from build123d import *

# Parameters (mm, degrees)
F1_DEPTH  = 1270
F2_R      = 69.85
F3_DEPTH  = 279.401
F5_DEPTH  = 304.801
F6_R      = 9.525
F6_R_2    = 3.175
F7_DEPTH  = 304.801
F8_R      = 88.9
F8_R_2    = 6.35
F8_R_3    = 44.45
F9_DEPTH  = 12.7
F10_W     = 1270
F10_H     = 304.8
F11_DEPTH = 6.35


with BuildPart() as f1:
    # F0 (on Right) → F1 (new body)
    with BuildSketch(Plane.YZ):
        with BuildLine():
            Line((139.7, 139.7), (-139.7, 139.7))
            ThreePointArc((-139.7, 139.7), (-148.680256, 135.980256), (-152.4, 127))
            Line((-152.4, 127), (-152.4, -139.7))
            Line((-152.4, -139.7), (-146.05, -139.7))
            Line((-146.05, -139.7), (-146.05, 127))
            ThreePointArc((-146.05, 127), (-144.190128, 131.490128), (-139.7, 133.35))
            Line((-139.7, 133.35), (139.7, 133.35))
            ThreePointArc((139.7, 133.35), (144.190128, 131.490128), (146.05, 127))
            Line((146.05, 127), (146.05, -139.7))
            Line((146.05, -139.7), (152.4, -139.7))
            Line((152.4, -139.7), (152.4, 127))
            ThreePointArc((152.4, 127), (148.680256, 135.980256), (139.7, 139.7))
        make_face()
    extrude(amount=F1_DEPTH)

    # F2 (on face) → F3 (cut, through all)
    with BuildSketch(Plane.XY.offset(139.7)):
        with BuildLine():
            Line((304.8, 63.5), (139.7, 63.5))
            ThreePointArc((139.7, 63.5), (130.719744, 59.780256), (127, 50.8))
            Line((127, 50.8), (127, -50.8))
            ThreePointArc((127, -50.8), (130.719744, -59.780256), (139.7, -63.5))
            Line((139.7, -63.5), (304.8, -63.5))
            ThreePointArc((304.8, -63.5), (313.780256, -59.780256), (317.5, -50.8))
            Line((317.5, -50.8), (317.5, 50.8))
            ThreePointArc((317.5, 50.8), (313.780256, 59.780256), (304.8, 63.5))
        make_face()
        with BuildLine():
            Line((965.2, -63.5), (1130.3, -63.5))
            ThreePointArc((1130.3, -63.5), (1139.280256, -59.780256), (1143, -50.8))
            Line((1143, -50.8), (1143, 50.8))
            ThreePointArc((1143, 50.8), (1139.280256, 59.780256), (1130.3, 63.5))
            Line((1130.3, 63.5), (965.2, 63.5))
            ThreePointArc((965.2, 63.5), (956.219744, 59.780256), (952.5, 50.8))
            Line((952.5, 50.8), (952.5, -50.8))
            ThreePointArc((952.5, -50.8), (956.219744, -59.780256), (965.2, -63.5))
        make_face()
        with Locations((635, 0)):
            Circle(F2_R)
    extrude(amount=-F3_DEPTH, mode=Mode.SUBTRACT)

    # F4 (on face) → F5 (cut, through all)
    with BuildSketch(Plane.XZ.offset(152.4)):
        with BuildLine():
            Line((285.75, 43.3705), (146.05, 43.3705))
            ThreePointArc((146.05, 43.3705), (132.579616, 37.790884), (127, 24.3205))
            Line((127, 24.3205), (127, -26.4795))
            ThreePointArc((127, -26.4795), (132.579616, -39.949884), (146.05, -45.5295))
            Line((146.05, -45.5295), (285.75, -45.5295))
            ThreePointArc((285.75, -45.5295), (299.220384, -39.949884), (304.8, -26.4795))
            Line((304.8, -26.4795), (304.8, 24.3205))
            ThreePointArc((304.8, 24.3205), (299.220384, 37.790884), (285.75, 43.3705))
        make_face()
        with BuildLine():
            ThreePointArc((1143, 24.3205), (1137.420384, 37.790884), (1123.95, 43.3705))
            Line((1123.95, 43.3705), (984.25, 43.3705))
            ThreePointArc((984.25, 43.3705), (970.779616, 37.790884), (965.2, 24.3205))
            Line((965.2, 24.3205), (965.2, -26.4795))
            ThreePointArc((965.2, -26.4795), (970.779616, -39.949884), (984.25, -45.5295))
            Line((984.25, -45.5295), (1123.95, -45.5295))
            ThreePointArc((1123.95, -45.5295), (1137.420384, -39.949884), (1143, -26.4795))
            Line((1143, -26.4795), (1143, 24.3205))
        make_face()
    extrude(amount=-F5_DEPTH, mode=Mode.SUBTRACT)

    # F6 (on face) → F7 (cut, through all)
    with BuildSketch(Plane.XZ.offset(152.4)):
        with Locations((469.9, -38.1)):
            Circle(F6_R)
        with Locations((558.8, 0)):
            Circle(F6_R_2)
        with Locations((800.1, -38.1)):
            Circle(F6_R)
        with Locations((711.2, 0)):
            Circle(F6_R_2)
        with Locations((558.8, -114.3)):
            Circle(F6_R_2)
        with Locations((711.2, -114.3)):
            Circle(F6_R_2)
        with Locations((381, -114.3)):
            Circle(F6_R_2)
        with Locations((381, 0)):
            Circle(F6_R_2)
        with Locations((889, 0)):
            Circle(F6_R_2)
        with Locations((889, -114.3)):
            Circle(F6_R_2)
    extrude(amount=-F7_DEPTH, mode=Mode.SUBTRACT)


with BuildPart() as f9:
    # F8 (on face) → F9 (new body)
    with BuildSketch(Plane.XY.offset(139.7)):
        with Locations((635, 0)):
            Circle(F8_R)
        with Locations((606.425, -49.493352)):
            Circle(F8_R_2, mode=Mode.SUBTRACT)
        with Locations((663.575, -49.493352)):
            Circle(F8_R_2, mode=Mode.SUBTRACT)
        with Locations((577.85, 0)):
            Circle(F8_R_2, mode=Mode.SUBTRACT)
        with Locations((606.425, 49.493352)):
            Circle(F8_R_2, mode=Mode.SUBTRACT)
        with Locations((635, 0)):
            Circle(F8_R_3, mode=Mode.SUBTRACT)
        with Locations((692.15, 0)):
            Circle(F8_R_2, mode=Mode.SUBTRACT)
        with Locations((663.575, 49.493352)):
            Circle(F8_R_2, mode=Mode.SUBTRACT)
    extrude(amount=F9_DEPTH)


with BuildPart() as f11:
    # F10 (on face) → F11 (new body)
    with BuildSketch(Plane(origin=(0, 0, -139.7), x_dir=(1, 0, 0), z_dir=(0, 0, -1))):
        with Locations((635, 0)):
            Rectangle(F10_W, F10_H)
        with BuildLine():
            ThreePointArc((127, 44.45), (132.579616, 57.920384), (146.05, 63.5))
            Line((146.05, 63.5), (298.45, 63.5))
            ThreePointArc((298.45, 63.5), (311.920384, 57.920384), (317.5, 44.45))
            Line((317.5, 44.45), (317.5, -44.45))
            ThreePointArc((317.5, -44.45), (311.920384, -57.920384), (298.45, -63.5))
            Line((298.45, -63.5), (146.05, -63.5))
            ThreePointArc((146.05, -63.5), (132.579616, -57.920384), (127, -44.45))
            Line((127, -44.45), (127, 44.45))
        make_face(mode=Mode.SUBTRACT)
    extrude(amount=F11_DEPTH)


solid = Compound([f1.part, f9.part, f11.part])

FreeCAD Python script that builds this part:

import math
import FreeCAD as App
import Part
import Sketcher
Q = App.Units.Quantity

doc = App.newDocument("Part")
params = doc.addObject("Spreadsheet::Sheet", "Params")
for row, (alias, value) in enumerate([
    ("sketch1_radius", "0.5 in"),
    ("sketch1_width", "11 in"),
    ("sketch1_radius2", "0.25 in"),
    ("sketch1_height", "10.5 in"),
    ("pad1_length", "50 in"),
    ("sketch2_diameter", "5.5 in"),
    ("sketch2_radius", "0.5 in"),
    ("sketch2_height", "4 in"),
    ("sketch2_width", "6.5 in"),
    ("sketch3_height", "2 in"),
    ("sketch3_radius", "0.75 in"),
    ("sketch3_width", "5.5 in"),
    ("sketch4_diameter", "0.75 in"),
    ("sketch4_diameter2", "0.25 in"),
    ("sketch5_diameter", "7 in"),
    ("sketch5_diameter2", "0.5 in"),
    ("sketch5_diameter3", "3.5 in"),
    ("pad2_length", "0.5 in"),
    ("sketch6_width", "50 in"),
    ("sketch6_width2", "6 in"),
    ("sketch6_height", "12 in"),
    ("sketch6_radius", "0.75 in"),
    ("sketch6_height2", "3.5 in"),
    ("pad3_length", "0.25 in"),
], start=1):
    params.set(f"A{row}", alias)
    params.set(f"B{row}", "=" + value)
    params.setAlias(f"B{row}", alias)

body = doc.addObject("PartDesign::Body", "Body")

sketch1 = doc.addObject("Sketcher::SketchObject", "Sketch")
body.addObject(sketch1)
sketch1.AttachmentSupport = (doc.YZ_Plane, [""])
sketch1.MapMode = "FlatFace"
sketch1.addGeometry(Part.LineSegment(App.Vector(140, 140, 0), App.Vector(-140, 140, 0)), False)
sketch1.addGeometry(Part.ArcOfCircle(Part.Circle(App.Vector(-140, 127, 0), App.Vector(0, 0, 1), 13), math.radians(90), math.radians(180)), False)
sketch1.addGeometry(Part.LineSegment(App.Vector(-152, 127, 0), App.Vector(-152, -140, 0)), False)
sketch1.addGeometry(Part.LineSegment(App.Vector(-152, -140, 0), App.Vector(-146, -140, 0)), False)
sketch1.addGeometry(Part.LineSegment(App.Vector(-146, -140, 0), App.Vector(-146, 127, 0)), False)
sketch1.addGeometry(Part.ArcOfCircle(Part.Circle(App.Vector(-140, 127, 0), App.Vector(0, 0, 1), 6), math.radians(90), math.radians(180)), False)
sketch1.addGeometry(Part.LineSegment(App.Vector(-140, 133, 0), App.Vector(140, 133, 0)), False)
sketch1.addGeometry(Part.ArcOfCircle(Part.Circle(App.Vector(140, 127, 0), App.Vector(0, 0, 1), 6), math.radians(0), math.radians(90)), False)
sketch1.addGeometry(Part.LineSegment(App.Vector(146, 127, 0), App.Vector(146, -140, 0)), False)
sketch1.addGeometry(Part.LineSegment(App.Vector(146, -140, 0), App.Vector(152, -140, 0)), False)
sketch1.addGeometry(Part.LineSegment(App.Vector(152, -140, 0), App.Vector(152, 127, 0)), False)
sketch1.addGeometry(Part.ArcOfCircle(Part.Circle(App.Vector(140, 127, 0), App.Vector(0, 0, 1), 13), math.radians(0), math.radians(90)), False)
sketch1.addConstraint(Sketcher.Constraint("Tangent", 0, 2, 1, 1))
sketch1.addConstraint(Sketcher.Constraint("Tangent", 1, 2, 2, 1))
sketch1.addConstraint(Sketcher.Constraint("Coincident", 2, 2, 3, 1))
sketch1.addConstraint(Sketcher.Constraint("Coincident", 3, 2, 4, 1))
sketch1.addConstraint(Sketcher.Constraint("Tangent", 4, 2, 5, 2))
sketch1.addConstraint(Sketcher.Constraint("Tangent", 5, 1, 6, 1))
sketch1.addConstraint(Sketcher.Constraint("Tangent", 6, 2, 7, 2))
sketch1.addConstraint(Sketcher.Constraint("Tangent", 7, 1, 8, 1))
sketch1.addConstraint(Sketcher.Constraint("Coincident", 8, 2, 9, 1))
sketch1.addConstraint(Sketcher.Constraint("Coincident", 9, 2, 10, 1))
sketch1.addConstraint(Sketcher.Constraint("Tangent", 10, 2, 11, 1))
sketch1.addConstraint(Sketcher.Constraint("Tangent", 11, 2, 0, 1))
sketch1.addConstraint(Sketcher.Constraint("Horizontal", 0))
sketch1.addConstraint(Sketcher.Constraint("Vertical", 2))
sketch1.addConstraint(Sketcher.Constraint("Horizontal", 3))
sketch1.addConstraint(Sketcher.Constraint("Vertical", 4))
sketch1.addConstraint(Sketcher.Constraint("Horizontal", 6))
sketch1.addConstraint(Sketcher.Constraint("Vertical", 8))
sketch1.addConstraint(Sketcher.Constraint("Horizontal", 9))
sketch1.addConstraint(Sketcher.Constraint("Vertical", 10))
sketch1.addConstraint(Sketcher.Constraint("Coincident", 5, 3, 1, 3))
sketch1.addConstraint(Sketcher.Constraint("Coincident", 11, 3, 7, 3))
sketch1.addConstraint(Sketcher.Constraint("Equal", 5, 7))
sketch1.addConstraint(Sketcher.Constraint("Symmetric", 3, 2, 8, 2, -2))
sketch1.addConstraint(Sketcher.Constraint("Radius", 1, Q("0.5 in")))
sketch1.addConstraint(Sketcher.Constraint("DistanceX", 0, 2, 0, 1, Q("11 in")))
sketch1.addConstraint(Sketcher.Constraint("Radius", 5, Q("0.25 in")))
sketch1.addConstraint(Sketcher.Constraint("DistanceY", 2, 2, 2, 1, Q("10.5 in")))
sketch1.addConstraint(Sketcher.Constraint("DistanceY", -1, 1, 1, 3, Q("5 in")))
sketch1.setExpression("Constraints[24]", "Params.sketch1_radius")
sketch1.setExpression("Constraints[25]", "Params.sketch1_width")
sketch1.setExpression("Constraints[26]", "Params.sketch1_radius2")
sketch1.setExpression("Constraints[27]", "Params.sketch1_height")
pad1 = doc.addObject("PartDesign::Pad", "Pad")
body.addObject(pad1)
pad1.Profile = sketch1
pad1.setExpression("Length", "Params.pad1_length")

sketch2 = doc.addObject("Sketcher::SketchObject", "Sketch001")
body.addObject(sketch2)
sketch2.AttachmentSupport = (doc.XY_Plane, [""])
sketch2.MapMode = "FlatFace"
sketch2.AttachmentOffset = App.Placement(App.Vector(0, 0, 5.5 * 25.4), App.Rotation())
sketch2.addGeometry(Part.LineSegment(App.Vector(305, 64, 0), App.Vector(140, 64, 0)), False)
sketch2.addGeometry(Part.ArcOfCircle(Part.Circle(App.Vector(140, 51, 0), App.Vector(0, 0, 1), 13), math.radians(90), math.radians(180)), False)
sketch2.addGeometry(Part.LineSegment(App.Vector(127, 51, 0), App.Vector(127, -51, 0)), False)
sketch2.addGeometry(Part.ArcOfCircle(Part.Circle(App.Vector(140, -51, 0), App.Vector(0, 0, 1), 13), math.radians(-180), math.radians(-90)), False)
sketch2.addGeometry(Part.LineSegment(App.Vector(140, -64, 0), App.Vector(305, -64, 0)), False)
sketch2.addGeometry(Part.ArcOfCircle(Part.Circle(App.Vector(305, -51, 0), App.Vector(0, 0, 1), 13), math.radians(-90), math.radians(0)), False)
sketch2.addGeometry(Part.LineSegment(App.Vector(318, -51, 0), App.Vector(318, 51, 0)), False)
sketch2.addGeometry(Part.ArcOfCircle(Part.Circle(App.Vector(305, 51, 0), App.Vector(0, 0, 1), 13), math.radians(0), math.radians(90)), False)
sketch2.addGeometry(Part.LineSegment(App.Vector(965, -64, 0), App.Vector(1130, -64, 0)), False)
sketch2.addGeometry(Part.ArcOfCircle(Part.Circle(App.Vector(1130, -51, 0), App.Vector(0, 0, 1), 13), math.radians(-90), math.radians(0)), False)
sketch2.addGeometry(Part.LineSegment(App.Vector(1143, -51, 0), App.Vector(1143, 51, 0)), False)
sketch2.addGeometry(Part.ArcOfCircle(Part.Circle(App.Vector(1130, 51, 0), App.Vector(0, 0, 1), 13), math.radians(0), math.radians(90)), False)
sketch2.addGeometry(Part.LineSegment(App.Vector(1130, 64, 0), App.Vector(965, 64, 0)), False)
sketch2.addGeometry(Part.ArcOfCircle(Part.Circle(App.Vector(965, 51, 0), App.Vector(0, 0, 1), 13), math.radians(90), math.radians(180)), False)
sketch2.addGeometry(Part.LineSegment(App.Vector(952, 51, 0), App.Vector(952, -51, 0)), False)
sketch2.addGeometry(Part.ArcOfCircle(Part.Circle(App.Vector(965, -51, 0), App.Vector(0, 0, 1), 13), math.radians(-180), math.radians(-90)), False)
sketch2.addGeometry(Part.Circle(App.Vector(635, 0, 0), App.Vector(0, 0, 1), 70), False)
sketch2.addConstraint(Sketcher.Constraint("Tangent", 0, 2, 1, 1))
sketch2.addConstraint(Sketcher.Constraint("Tangent", 1, 2, 2, 1))
sketch2.addConstraint(Sketcher.Constraint("Tangent", 2, 2, 3, 1))
sketch2.addConstraint(Sketcher.Constraint("Tangent", 3, 2, 4, 1))
sketch2.addConstraint(Sketcher.Constraint("Tangent", 4, 2, 5, 1))
sketch2.addConstraint(Sketcher.Constraint("Tangent", 5, 2, 6, 1))
sketch2.addConstraint(Sketcher.Constraint("Tangent", 6, 2, 7, 1))
sketch2.addConstraint(Sketcher.Constraint("Tangent", 7, 2, 0, 1))
sketch2.addConstraint(Sketcher.Constraint("Tangent", 8, 2, 9, 1))
sketch2.addConstraint(Sketcher.Constraint("Tangent", 9, 2, 10, 1))
sketch2.addConstraint(Sketcher.Constraint("Tangent", 10, 2, 11, 1))
sketch2.addConstraint(Sketcher.Constraint("Tangent", 11, 2, 12, 1))
sketch2.addConstraint(Sketcher.Constraint("Tangent", 12, 2, 13, 1))
sketch2.addConstraint(Sketcher.Constraint("Tangent", 13, 2, 14, 1))
sketch2.addConstraint(Sketcher.Constraint("Tangent", 14, 2, 15, 1))
sketch2.addConstraint(Sketcher.Constraint("Tangent", 15, 2, 8, 1))
sketch2.addConstraint(Sketcher.Constraint("Horizontal", 0))
sketch2.addConstraint(Sketcher.Constraint("Vertical", 2))
sketch2.addConstraint(Sketcher.Constraint("Horizontal", 4))
sketch2.addConstraint(Sketcher.Constraint("Vertical", 6))
sketch2.addConstraint(Sketcher.Constraint("Horizontal", 8))
sketch2.addConstraint(Sketcher.Constraint("Vertical", 10))
sketch2.addConstraint(Sketcher.Constraint("Horizontal", 12))
sketch2.addConstraint(Sketcher.Constraint("Vertical", 14))
sketch2.addConstraint(Sketcher.Constraint("Equal", 1, 3))
sketch2.addConstraint(Sketcher.Constraint("Equal", 3, 5))
sketch2.addConstraint(Sketcher.Constraint("Equal", 5, 7))
sketch2.addConstraint(Sketcher.Constraint("Equal", 7, 9))
sketch2.addConstraint(Sketcher.Constraint("Equal", 9, 11))
sketch2.addConstraint(Sketcher.Constraint("Equal", 11, 13))
sketch2.addConstraint(Sketcher.Constraint("Equal", 13, 15))
sketch2.addConstraint(Sketcher.Constraint("PointOnObject", 16, 3, -1))
sketch2.addConstraint(Sketcher.Constraint("Horizontal", 5, 3, 9, 3))
sketch2.addConstraint(Sketcher.Constraint("Horizontal", 7, 3, 11, 3))
sketch2.addConstraint(Sketcher.Constraint("Equal", 4, 8))
sketch2.addConstraint(Sketcher.Constraint("Diameter", 16, Q("5.5 in")))
sketch2.addConstraint(Sketcher.Constraint("Radius", 1, Q("0.5 in")))
sketch2.addConstraint(Sketcher.Constraint("DistanceY", 2, 2, 2, 1, Q("4 in")))
sketch2.addConstraint(Sketcher.Constraint("DistanceX", 0, 2, 0, 1, Q("6.5 in")))
sketch2.addConstraint(Sketcher.Constraint("DistanceY", -1, 1, 1, 3, Q("2 in")))
sketch2.addConstraint(Sketcher.Constraint("DistanceX", -1, 1, 5, 3, Q("12 in")))
sketch2.addConstraint(Sketcher.Constraint("DistanceX", -1, 1, 13, 3, Q("38 in")))
sketch2.addConstraint(Sketcher.Constraint("DistanceX", -1, 1, 16, 3, Q("25 in")))
sketch2.setExpression("Constraints[35]", "Params.sketch2_diameter")
sketch2.setExpression("Constraints[36]", "Params.sketch2_radius")
sketch2.setExpression("Constraints[37]", "Params.sketch2_height")
sketch2.setExpression("Constraints[38]", "Params.sketch2_width")
pocket1 = doc.addObject("PartDesign::Pocket", "Pocket")
body.addObject(pocket1)
pocket1.Profile = sketch2
pocket1.Type = "ThroughAll"

sketch3 = doc.addObject("Sketcher::SketchObject", "Sketch002")
body.addObject(sketch3)
sketch3.AttachmentSupport = (doc.XZ_Plane, [""])
sketch3.MapMode = "FlatFace"
sketch3.AttachmentOffset = App.Placement(App.Vector(0, 0, 6 * 25.4), App.Rotation())
sketch3.addGeometry(Part.LineSegment(App.Vector(286, 43, 0), App.Vector(146, 43, 0)), False)
sketch3.addGeometry(Part.ArcOfCircle(Part.Circle(App.Vector(146, 24, 0), App.Vector(0, 0, 1), 19), math.radians(90), math.radians(180)), False)
sketch3.addGeometry(Part.LineSegment(App.Vector(127, 24, 0), App.Vector(127, -26, 0)), False)
sketch3.addGeometry(Part.ArcOfCircle(Part.Circle(App.Vector(146, -26, 0), App.Vector(0, 0, 1), 19), math.radians(-180), math.radians(-90)), False)
sketch3.addGeometry(Part.LineSegment(App.Vector(146, -46, 0), App.Vector(286, -46, 0)), False)
sketch3.addGeometry(Part.ArcOfCircle(Part.Circle(App.Vector(286, -26, 0), App.Vector(0, 0, 1), 19), math.radians(-90), math.radians(0)), False)
sketch3.addGeometry(Part.LineSegment(App.Vector(305, -26, 0), App.Vector(305, 24, 0)), False)
sketch3.addGeometry(Part.ArcOfCircle(Part.Circle(App.Vector(286, 24, 0), App.Vector(0, 0, 1), 19), math.radians(0), math.radians(90)), False)
sketch3.addGeometry(Part.ArcOfCircle(Part.Circle(App.Vector(1124, 24, 0), App.Vector(0, 0, 1), 19), math.radians(0), math.radians(90)), False)
sketch3.addGeometry(Part.LineSegment(App.Vector(1124, 43, 0), App.Vector(984, 43, 0)), False)
sketch3.addGeometry(Part.ArcOfCircle(Part.Circle(App.Vector(984, 24, 0), App.Vector(0, 0, 1), 19), math.radians(90), math.radians(180)), False)
sketch3.addGeometry(Part.LineSegment(App.Vector(965, 24, 0), App.Vector(965, -26, 0)), False)
sketch3.addGeometry(Part.ArcOfCircle(Part.Circle(App.Vector(984, -26, 0), App.Vector(0, 0, 1), 19), math.radians(-180), math.radians(-90)), False)
sketch3.addGeometry(Part.LineSegment(App.Vector(984, -46, 0), App.Vector(1124, -46, 0)), False)
sketch3.addGeometry(Part.ArcOfCircle(Part.Circle(App.Vector(1124, -26, 0), App.Vector(0, 0, 1), 19), math.radians(-90), math.radians(0)), False)
sketch3.addGeometry(Part.LineSegment(App.Vector(1143, -26, 0), App.Vector(1143, 24, 0)), False)
sketch3.addConstraint(Sketcher.Constraint("Tangent", 0, 2, 1, 1))
sketch3.addConstraint(Sketcher.Constraint("Tangent", 1, 2, 2, 1))
sketch3.addConstraint(Sketcher.Constraint("Tangent", 2, 2, 3, 1))
sketch3.addConstraint(Sketcher.Constraint("Tangent", 3, 2, 4, 1))
sketch3.addConstraint(Sketcher.Constraint("Tangent", 4, 2, 5, 1))
sketch3.addConstraint(Sketcher.Constraint("Tangent", 5, 2, 6, 1))
sketch3.addConstraint(Sketcher.Constraint("Tangent", 6, 2, 7, 1))
sketch3.addConstraint(Sketcher.Constraint("Tangent", 7, 2, 0, 1))
sketch3.addConstraint(Sketcher.Constraint("Tangent", 8, 2, 9, 1))
sketch3.addConstraint(Sketcher.Constraint("Tangent", 9, 2, 10, 1))
sketch3.addConstraint(Sketcher.Constraint("Tangent", 10, 2, 11, 1))
sketch3.addConstraint(Sketcher.Constraint("Tangent", 11, 2, 12, 1))
sketch3.addConstraint(Sketcher.Constraint("Tangent", 12, 2, 13, 1))
sketch3.addConstraint(Sketcher.Constraint("Tangent", 13, 2, 14, 1))
sketch3.addConstraint(Sketcher.Constraint("Tangent", 14, 2, 15, 1))
sketch3.addConstraint(Sketcher.Constraint("Tangent", 15, 2, 8, 1))
sketch3.addConstraint(Sketcher.Constraint("Horizontal", 0))
sketch3.addConstraint(Sketcher.Constraint("Vertical", 2))
sketch3.addConstraint(Sketcher.Constraint("Horizontal", 4))
sketch3.addConstraint(Sketcher.Constraint("Vertical", 6))
sketch3.addConstraint(Sketcher.Constraint("Horizontal", 9))
sketch3.addConstraint(Sketcher.Constraint("Vertical", 11))
sketch3.addConstraint(Sketcher.Constraint("Horizontal", 13))
sketch3.addConstraint(Sketcher.Constraint("Vertical", 15))
sketch3.addConstraint(Sketcher.Constraint("Equal", 1, 3))
sketch3.addConstraint(Sketcher.Constraint("Equal", 3, 5))
sketch3.addConstraint(Sketcher.Constraint("Equal", 5, 7))
sketch3.addConstraint(Sketcher.Constraint("Equal", 7, 8))
sketch3.addConstraint(Sketcher.Constraint("Equal", 8, 10))
sketch3.addConstraint(Sketcher.Constraint("Equal", 10, 12))
sketch3.addConstraint(Sketcher.Constraint("Equal", 12, 14))
sketch3.addConstraint(Sketcher.Constraint("Horizontal", 7, 3, 8, 3))
sketch3.addConstraint(Sketcher.Constraint("Horizontal", 5, 3, 12, 3))
sketch3.addConstraint(Sketcher.Constraint("Equal", 4, 9))
sketch3.addConstraint(Sketcher.Constraint("DistanceY", 2, 2, 2, 1, Q("2 in")))
sketch3.addConstraint(Sketcher.Constraint("Radius", 1, Q("0.75 in")))
sketch3.addConstraint(Sketcher.Constraint("DistanceX", 0, 2, 0, 1, Q("5.5 in")))
sketch3.addConstraint(Sketcher.Constraint("DistanceX", -1, 1, 1, 2, Q("5 in")))
sketch3.addConstraint(Sketcher.Constraint("DistanceX", -1, 1, 10, 2, Q("38 in")))
sketch3.addConstraint(Sketcher.Constraint("DistanceY", -1, 1, 1, 3, Q("0.9575 in")))
sketch3.setExpression("Constraints[34]", "Params.sketch3_height")
sketch3.setExpression("Constraints[35]", "Params.sketch3_radius")
sketch3.setExpression("Constraints[36]", "Params.sketch3_width")
pocket2 = doc.addObject("PartDesign::Pocket", "Pocket001")
body.addObject(pocket2)
pocket2.Profile = sketch3
pocket2.Type = "ThroughAll"

sketch4 = doc.addObject("Sketcher::SketchObject", "Sketch003")
body.addObject(sketch4)
sketch4.AttachmentSupport = (doc.XZ_Plane, [""])
sketch4.MapMode = "FlatFace"
sketch4.AttachmentOffset = App.Placement(App.Vector(0, 0, 6 * 25.4), App.Rotation())
sketch4.addGeometry(Part.Circle(App.Vector(469.9, -38.1, 0), App.Vector(0, 0, 1), 9.5), False)
sketch4.addGeometry(Part.Circle(App.Vector(558.8, 0, 0), App.Vector(0, 0, 1), 3.2), False)
sketch4.addGeometry(Part.Circle(App.Vector(800.1, -38.1, 0), App.Vector(0, 0, 1), 9.5), False)
sketch4.addGeometry(Part.Circle(App.Vector(711.2, 0, 0), App.Vector(0, 0, 1), 3.2), False)
sketch4.addGeometry(Part.Circle(App.Vector(558.8, -114.3, 0), App.Vector(0, 0, 1), 3.2), False)
sketch4.addGeometry(Part.Circle(App.Vector(711.2, -114.3, 0), App.Vector(0, 0, 1), 3.2), False)
sketch4.addGeometry(Part.Circle(App.Vector(381, -114.3, 0), App.Vector(0, 0, 1), 3.2), False)
sketch4.addGeometry(Part.Circle(App.Vector(381, 0, 0), App.Vector(0, 0, 1), 3.2), False)
sketch4.addGeometry(Part.Circle(App.Vector(889, 0, 0), App.Vector(0, 0, 1), 3.2), False)
sketch4.addGeometry(Part.Circle(App.Vector(889, -114.3, 0), App.Vector(0, 0, 1), 3.2), False)
sketch4.addConstraint(Sketcher.Constraint("Equal", 0, 2))
sketch4.addConstraint(Sketcher.Constraint("Equal", 1, 3))
sketch4.addConstraint(Sketcher.Constraint("Equal", 3, 4))
sketch4.addConstraint(Sketcher.Constraint("Equal", 4, 5))
sketch4.addConstraint(Sketcher.Constraint("Equal", 5, 6))
sketch4.addConstraint(Sketcher.Constraint("Equal", 6, 7))
sketch4.addConstraint(Sketcher.Constraint("Equal", 7, 8))
sketch4.addConstraint(Sketcher.Constraint("Equal", 8, 9))
sketch4.addConstraint(Sketcher.Constraint("PointOnObject", 1, 3, -1))
sketch4.addConstraint(Sketcher.Constraint("PointOnObject", 3, 3, -1))
sketch4.addConstraint(Sketcher.Constraint("PointOnObject", 7, 3, -1))
sketch4.addConstraint(Sketcher.Constraint("PointOnObject", 8, 3, -1))
sketch4.addConstraint(Sketcher.Constraint("Horizontal", 0, 3, 2, 3))
sketch4.addConstraint(Sketcher.Constraint("Horizontal", 4, 3, 5, 3))
sketch4.addConstraint(Sketcher.Constraint("Horizontal", 5, 3, 6, 3))
sketch4.addConstraint(Sketcher.Constraint("Horizontal", 6, 3, 9, 3))
sketch4.addConstraint(Sketcher.Constraint("Vertical", 1, 3, 4, 3))
sketch4.addConstraint(Sketcher.Constraint("Vertical", 3, 3, 5, 3))
sketch4.addConstraint(Sketcher.Constraint("Vertical", 6, 3, 7, 3))
sketch4.addConstraint(Sketcher.Constraint("Vertical", 8, 3, 9, 3))
sketch4.addConstraint(Sketcher.Constraint("Diameter", 0, Q("0.75 in")))
sketch4.addConstraint(Sketcher.Constraint("Diameter", 1, Q("0.25 in")))
sketch4.addConstraint(Sketcher.Constraint("DistanceX", -1, 1, 1, 3, Q("22 in")))
sketch4.addConstraint(Sketcher.Constraint("DistanceX", -1, 1, 3, 3, Q("28 in")))
sketch4.addConstraint(Sketcher.Constraint("DistanceX", -1, 1, 6, 3, Q("15 in")))
sketch4.addConstraint(Sketcher.Constraint("DistanceX", -1, 1, 8, 3, Q("35 in")))
sketch4.addConstraint(Sketcher.Constraint("DistanceX", 0, 3, 2, 3, Q("13 in")))
sketch4.addConstraint(Sketcher.Constraint("DistanceY", 4, 3, 0, 3, Q("3 in")))
sketch4.addConstraint(Sketcher.Constraint("DistanceX", -1, 1, 0, 3, Q("18.5 in")))
sketch4.addConstraint(Sketcher.Constraint("DistanceY", 0, 3, -1, 1, Q("1.5 in")))
sketch4.setExpression("Constraints[20]", "Params.sketch4_diameter")
sketch4.setExpression("Constraints[21]", "Params.sketch4_diameter2")
pocket3 = doc.addObject("PartDesign::Pocket", "Pocket002")
body.addObject(pocket3)
pocket3.Profile = sketch4
pocket3.Type = "ThroughAll"
body2 = doc.addObject("PartDesign::Body", "Body001")

sketch5 = doc.addObject("Sketcher::SketchObject", "Sketch004")
body2.addObject(sketch5)
sketch5.AttachmentSupport = (doc.getObject("XY_Plane001"), [""])
sketch5.MapMode = "FlatFace"
sketch5.AttachmentOffset = App.Placement(App.Vector(0, 0, 5.5 * 25.4), App.Rotation())
sketch5.addGeometry(Part.Circle(App.Vector(635, 0, 0), App.Vector(0, 0, 1), 89), False)
sketch5.addGeometry(Part.Circle(App.Vector(606, -49, 0), App.Vector(0, 0, 1), 6), False)
sketch5.addGeometry(Part.Circle(App.Vector(664, -49, 0), App.Vector(0, 0, 1), 6), False)
sketch5.addGeometry(Part.Circle(App.Vector(578, 0, 0), App.Vector(0, 0, 1), 6), False)
sketch5.addGeometry(Part.Circle(App.Vector(606, 49, 0), App.Vector(0, 0, 1), 6), False)
sketch5.addGeometry(Part.Circle(App.Vector(635, 0, 0), App.Vector(0, 0, 1), 44), False)
sketch5.addGeometry(Part.Circle(App.Vector(692, 0, 0), App.Vector(0, 0, 1), 6), False)
sketch5.addGeometry(Part.Circle(App.Vector(664, 49, 0), App.Vector(0, 0, 1), 6), False)
sketch5.addConstraint(Sketcher.Constraint("Coincident", 5, 3, 0, 3))
sketch5.addConstraint(Sketcher.Constraint("Equal", 1, 2))
sketch5.addConstraint(Sketcher.Constraint("Equal", 2, 3))
sketch5.addConstraint(Sketcher.Constraint("Equal", 3, 4))
sketch5.addConstraint(Sketcher.Constraint("Equal", 4, 6))
sketch5.addConstraint(Sketcher.Constraint("Equal", 6, 7))
sketch5.addConstraint(Sketcher.Constraint("Symmetric", 1, 3, 4, 3, -1))
sketch5.addConstraint(Sketcher.Constraint("Symmetric", 2, 3, 7, 3, -1))
sketch5.addConstraint(Sketcher.Constraint("PointOnObject", 0, 3, -1))
sketch5.addConstraint(Sketcher.Constraint("PointOnObject", 3, 3, -1))
sketch5.addConstraint(Sketcher.Constraint("PointOnObject", 6, 3, -1))
sketch5.addConstraint(Sketcher.Constraint("Horizontal", 1, 3, 2, 3))
sketch5.addConstraint(Sketcher.Constraint("Diameter", 0, Q("7 in")))
sketch5.addConstraint(Sketcher.Constraint("Diameter", 1, Q("0.5 in")))
sketch5.addConstraint(Sketcher.Constraint("Diameter", 5, Q("3.5 in")))
sketch5.addConstraint(Sketcher.Constraint("DistanceX", -1, 1, 0, 3, Q("25 in")))
sketch5.addConstraint(Sketcher.Constraint("DistanceX", -1, 1, 3, 3, Q("22.75 in")))
sketch5.addConstraint(Sketcher.Constraint("DistanceX", -1, 1, 6, 3, Q("27.25 in")))
sketch5.addConstraint(Sketcher.Constraint("DistanceX", 1, 3, 2, 3, Q("2.25 in")))
sketch5.addConstraint(Sketcher.Constraint("DistanceX", -1, 1, 1, 3, Q("23.875 in")))
sketch5.addConstraint(Sketcher.Constraint("DistanceY", 1, 3, -1, 1, Q("49.493352 mm")))
sketch5.setExpression("Constraints[12]", "Params.sketch5_diameter")
sketch5.setExpression("Constraints[13]", "Params.sketch5_diameter2")
sketch5.setExpression("Constraints[14]", "Params.sketch5_diameter3")
pad2 = doc.addObject("PartDesign::Pad", "Pad001")
body2.addObject(pad2)
pad2.Profile = sketch5
pad2.setExpression("Length", "Params.pad2_length")
body3 = doc.addObject("PartDesign::Body", "Body002")

sketch6 = doc.addObject("Sketcher::SketchObject", "Sketch005")
body3.addObject(sketch6)
sketch6.AttachmentSupport = (doc.getObject("XY_Plane002"), [""])
sketch6.MapMode = "FlatFace"
sketch6.AttachmentOffset = App.Placement(App.Vector(0, 0, -5.5 * 25.4), App.Rotation())
sketch6.addGeometry(Part.LineSegment(App.Vector(0, -152, 0), App.Vector(0, 152, 0)), False)
sketch6.addGeometry(Part.LineSegment(App.Vector(0, 152, 0), App.Vector(1270, 152, 0)), False)
sketch6.addGeometry(Part.LineSegment(App.Vector(1270, 152, 0), App.Vector(1270, -152, 0)), False)
sketch6.addGeometry(Part.LineSegment(App.Vector(1270, -152, 0), App.Vector(0, -152, 0)), False)
sketch6.addGeometry(Part.LineSegment(App.Vector(127, 44, 0), App.Vector(127, -44, 0)), False)
sketch6.addGeometry(Part.ArcOfCircle(Part.Circle(App.Vector(146, -44, 0), App.Vector(0, 0, 1), 19), math.radians(-180), math.radians(-90)), False)
sketch6.addGeometry(Part.LineSegment(App.Vector(146, -64, 0), App.Vector(298, -64, 0)), False)
sketch6.addGeometry(Part.ArcOfCircle(Part.Circle(App.Vector(298, -44, 0), App.Vector(0, 0, 1), 19), math.radians(-90), math.radians(0)), False)
sketch6.addGeometry(Part.LineSegment(App.Vector(318, -44, 0), App.Vector(318, 44, 0)), False)
sketch6.addGeometry(Part.ArcOfCircle(Part.Circle(App.Vector(298, 44, 0), App.Vector(0, 0, 1), 19), math.radians(0), math.radians(90)), False)
sketch6.addGeometry(Part.LineSegment(App.Vector(298, 64, 0), App.Vector(146, 64, 0)), False)
sketch6.addGeometry(Part.ArcOfCircle(Part.Circle(App.Vector(146, 44, 0), App.Vector(0, 0, 1), 19), math.radians(90), math.radians(180)), False)
sketch6.addConstraint(Sketcher.Constraint("Coincident", 0, 2, 1, 1))
sketch6.addConstraint(Sketcher.Constraint("Coincident", 1, 2, 2, 1))
sketch6.addConstraint(Sketcher.Constraint("Coincident", 2, 2, 3, 1))
sketch6.addConstraint(Sketcher.Constraint("Coincident", 3, 2, 0, 1))
sketch6.addConstraint(Sketcher.Constraint("Tangent", 4, 2, 5, 1))
sketch6.addConstraint(Sketcher.Constraint("Tangent", 5, 2, 6, 1))
sketch6.addConstraint(Sketcher.Constraint("Tangent", 6, 2, 7, 1))
sketch6.addConstraint(Sketcher.Constraint("Tangent", 7, 2, 8, 1))
sketch6.addConstraint(Sketcher.Constraint("Tangent", 8, 2, 9, 1))
sketch6.addConstraint(Sketcher.Constraint("Tangent", 9, 2, 10, 1))
sketch6.addConstraint(Sketcher.Constraint("Tangent", 10, 2, 11, 1))
sketch6.addConstraint(Sketcher.Constraint("Tangent", 11, 2, 4, 1))
sketch6.addConstraint(Sketcher.Constraint("Vertical", 0))
sketch6.addConstraint(Sketcher.Constraint("Horizontal", 1))
sketch6.addConstraint(Sketcher.Constraint("Vertical", 2))
sketch6.addConstraint(Sketcher.Constraint("Horizontal", 3))
sketch6.addConstraint(Sketcher.Constraint("Vertical", 4))
sketch6.addConstraint(Sketcher.Constraint("Horizontal", 6))
sketch6.addConstraint(Sketcher.Constraint("Vertical", 8))
sketch6.addConstraint(Sketcher.Constraint("Horizontal", 10))
sketch6.addConstraint(Sketcher.Constraint("Equal", 5, 7))
sketch6.addConstraint(Sketcher.Constraint("Equal", 7, 9))
sketch6.addConstraint(Sketcher.Constraint("Equal", 9, 11))
sketch6.addConstraint(Sketcher.Constraint("Symmetric", 0, 2, 3, 2, -1, 1))
sketch6.addConstraint(Sketcher.Constraint("DistanceX", 1, 1, 1, 2, Q("50 in")))
sketch6.addConstraint(Sketcher.Constraint("DistanceX", 6, 1, 6, 2, Q("6 in")))
sketch6.addConstraint(Sketcher.Constraint("DistanceY", 0, 1, 0, 2, Q("12 in")))
sketch6.addConstraint(Sketcher.Constraint("Radius", 5, Q("0.75 in")))
sketch6.addConstraint(Sketcher.Constraint("DistanceY", 4, 2, 4, 1, Q("3.5 in")))
sketch6.addConstraint(Sketcher.Constraint("DistanceX", -1, 1, 4, 2, Q("5 in")))
sketch6.addConstraint(Sketcher.Constraint("DistanceY", 5, 2, -1, 1, Q("2.5 in")))
sketch6.setExpression("Constraints[24]", "Params.sketch6_width")
sketch6.setExpression("Constraints[25]", "Params.sketch6_width2")
sketch6.setExpression("Constraints[26]", "Params.sketch6_height")
sketch6.setExpression("Constraints[27]", "Params.sketch6_radius")
sketch6.setExpression("Constraints[28]", "Params.sketch6_height2")
pad3 = doc.addObject("PartDesign::Pad", "Pad002")
body3.addObject(pad3)
pad3.Profile = sketch6
pad3.setExpression("Length", "Params.pad3_length")
pad3.Reversed = True

doc.recompute()
